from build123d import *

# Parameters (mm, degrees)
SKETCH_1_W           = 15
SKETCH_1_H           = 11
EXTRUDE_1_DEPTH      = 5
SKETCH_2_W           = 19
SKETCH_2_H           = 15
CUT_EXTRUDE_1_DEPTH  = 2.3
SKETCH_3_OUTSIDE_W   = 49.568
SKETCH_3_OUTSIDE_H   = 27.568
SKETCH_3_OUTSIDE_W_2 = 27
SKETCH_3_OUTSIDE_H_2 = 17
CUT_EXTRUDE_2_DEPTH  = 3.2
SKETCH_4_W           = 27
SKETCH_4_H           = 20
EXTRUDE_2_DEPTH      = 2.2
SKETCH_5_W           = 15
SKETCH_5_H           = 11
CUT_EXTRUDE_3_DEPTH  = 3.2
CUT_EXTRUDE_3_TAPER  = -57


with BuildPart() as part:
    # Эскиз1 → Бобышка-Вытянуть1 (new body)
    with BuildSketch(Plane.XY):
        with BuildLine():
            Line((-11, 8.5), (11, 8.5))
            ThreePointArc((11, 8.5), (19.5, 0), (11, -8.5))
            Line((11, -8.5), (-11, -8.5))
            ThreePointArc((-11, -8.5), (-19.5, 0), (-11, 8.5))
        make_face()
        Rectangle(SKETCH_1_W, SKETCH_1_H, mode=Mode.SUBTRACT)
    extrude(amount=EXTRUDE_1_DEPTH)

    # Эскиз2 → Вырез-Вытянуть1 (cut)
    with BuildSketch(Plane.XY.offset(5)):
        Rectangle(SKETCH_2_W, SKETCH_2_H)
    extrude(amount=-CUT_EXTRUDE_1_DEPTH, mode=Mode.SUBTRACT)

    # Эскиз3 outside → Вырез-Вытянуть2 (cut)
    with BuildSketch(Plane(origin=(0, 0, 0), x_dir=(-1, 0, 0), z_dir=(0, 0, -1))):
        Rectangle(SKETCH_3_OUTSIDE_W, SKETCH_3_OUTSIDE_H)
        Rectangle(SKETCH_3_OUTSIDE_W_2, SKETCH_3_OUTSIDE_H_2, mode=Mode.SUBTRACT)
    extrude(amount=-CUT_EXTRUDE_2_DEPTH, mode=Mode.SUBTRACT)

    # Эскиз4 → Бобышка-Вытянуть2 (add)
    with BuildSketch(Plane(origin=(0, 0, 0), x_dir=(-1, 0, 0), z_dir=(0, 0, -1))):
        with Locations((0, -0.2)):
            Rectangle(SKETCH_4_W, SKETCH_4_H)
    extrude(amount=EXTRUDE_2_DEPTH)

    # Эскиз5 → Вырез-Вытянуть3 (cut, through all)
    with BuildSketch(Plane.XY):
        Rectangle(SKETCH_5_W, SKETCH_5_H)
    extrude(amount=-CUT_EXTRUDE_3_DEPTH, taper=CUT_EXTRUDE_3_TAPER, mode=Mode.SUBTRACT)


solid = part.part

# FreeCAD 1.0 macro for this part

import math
import FreeCAD as App
import Part
import Sketcher
Q = App.Units.Quantity

doc = App.newDocument("Part")
body = doc.addObject("PartDesign::Body", "Body")

# Sketch on XY plane
sketch1 = body.newObject("Sketcher::SketchObject", "Sketch")
sketch1.AttachmentSupport = (doc.getObject("XY_Plane"), [""])
sketch1.MapMode = "FlatFace"
sketch1.addGeometry([
    Part.LineSegment(App.Vector(11, 8, 0), App.Vector(-11, 8, 0)),  # 0
    Part.ArcOfCircle(Part.Circle(App.Vector(-11, 0, 0), App.Vector(0, 0, 1), 8), math.radians(90), math.radians(270)),  # 1
    Part.LineSegment(App.Vector(-11, -8, 0), App.Vector(11, -8, 0)),  # 2
    Part.ArcOfCircle(Part.Circle(App.Vector(11, 0, 0), App.Vector(0, 0, 1), 8), math.radians(-90), math.radians(90)),  # 3
    Part.LineSegment(App.Vector(-8, -6, 0), App.Vector(-8, 6, 0)),  # 4
    Part.LineSegment(App.Vector(-8, 6, 0), App.Vector(8, 6, 0)),  # 5
    Part.LineSegment(App.Vector(8, 6, 0), App.Vector(8, -6, 0)),  # 6
    Part.LineSegment(App.Vector(8, -6, 0), App.Vector(-8, -6, 0)),  # 7
], False)
sketch1.addConstraint([
    Sketcher.Constraint("Tangent", 0, 2, 1, 1),
    Sketcher.Constraint("Tangent", 1, 2, 2, 1),
    Sketcher.Constraint("Tangent", 2, 2, 3, 1),
    Sketcher.Constraint("Tangent", 3, 2, 0, 1),
    Sketcher.Constraint("Coincident", 4, 2, 5, 1),
    Sketcher.Constraint("Coincident", 5, 2, 6, 1),
    Sketcher.Constraint("Coincident", 6, 2, 7, 1),
    Sketcher.Constraint("Coincident", 7, 2, 4, 1),
    Sketcher.Constraint("Horizontal", 0),
    Sketcher.Constraint("Horizontal", 2),
    Sketcher.Constraint("Vertical", 4),
    Sketcher.Constraint("Horizontal", 5),
    Sketcher.Constraint("Vertical", 6),
    Sketcher.Constraint("Horizontal", 7),
    Sketcher.Constraint("Symmetric", 1, 3, 3, 3, -1, 1),
    Sketcher.Constraint("Symmetric", 4, 2, 6, 2, -1, 1),
    Sketcher.Constraint("Radius", 1, Q("8.5 mm")),
    Sketcher.Constraint("DistanceX", 0, 2, 0, 1, Q("22 mm")),
    Sketcher.Constraint("DistanceX", 5, 1, 5, 2, Q("15 mm")),
    Sketcher.Constraint("DistanceY", 4, 1, 4, 2, Q("11 mm")),
])
pad1 = body.newObject("PartDesign::Pad", "Pad")
pad1.Profile = sketch1
pad1.Length = 5

# Sketch on XY plane
sketch2 = body.newObject("Sketcher::SketchObject", "Sketch001")
sketch2.AttachmentSupport = (doc.getObject("XY_Plane"), [""])
sketch2.MapMode = "FlatFace"
sketch2.AttachmentOffset = App.Placement(App.Vector(0, 0, 5), App.Rotation())
sketch2.addGeometry([
    Part.LineSegment(App.Vector(-10, 8, 0), App.Vector(-10, -8, 0)),
    Part.LineSegment(App.Vector(-10, -8, 0), App.Vector(10, -8, 0)),
    Part.LineSegment(App.Vector(10, -8, 0), App.Vector(10, 8, 0)),
    Part.LineSegment(App.Vector(10, 8, 0), App.Vector(-10, 8, 0)),
], False)
sketch2.addConstraint([
    Sketcher.Constraint("Coincident", 0, 2, 1, 1),
    Sketcher.Constraint("Coincident", 1, 2, 2, 1),
    Sketcher.Constraint("Coincident", 2, 2, 3, 1),
    Sketcher.Constraint("Coincident", 3, 2, 0, 1),
    Sketcher.Constraint("Vertical", 0),
    Sketcher.Constraint("Horizontal", 1),
    Sketcher.Constraint("Vertical", 2),
    Sketcher.Constraint("Horizontal", 3),
    Sketcher.Constraint("Symmetric", 0, 2, 2, 2, -1, 1),
    Sketcher.Constraint("DistanceX", 1, 1, 1, 2, Q("19 mm")),
    Sketcher.Constraint("DistanceY", 0, 2, 0, 1, Q("15 mm")),
])
pocket1 = body.newObject("PartDesign::Pocket", "Pocket")
pocket1.Profile = sketch2
pocket1.Length = 2.3

# Sketch on XY plane
sketch3 = body.newObject("Sketcher::SketchObject", "Sketch002")
sketch3.AttachmentSupport = (doc.getObject("XY_Plane"), [""])
sketch3.MapMode = "FlatFace"
sketch3.addGeometry([
    Part.LineSegment(App.Vector(25, 14, 0), App.Vector(25, -14, 0)),  # 0
    Part.LineSegment(App.Vector(25, -14, 0), App.Vector(-25, -14, 0)),  # 1
    Part.LineSegment(App.Vector(-25, -14, 0), App.Vector(-25, 14, 0)),  # 2
    Part.LineSegment(App.Vector(-25, 14, 0), App.Vector(25, 14, 0)),  # 3
    Part.LineSegment(App.Vector(-14, -8, 0), App.Vector(14, -8, 0)),  # 4
    Part.LineSegment(App.Vector(14, -8, 0), App.Vector(14, 8, 0)),  # 5
    Part.LineSegment(App.Vector(14, 8, 0), App.Vector(-14, 8, 0)),  # 6
    Part.LineSegment(App.Vector(-14, 8, 0), App.Vector(-14, -8, 0)),  # 7
], False)
sketch3.addConstraint([
    Sketcher.Constraint("Coincident", 0, 2, 1, 1),
    Sketcher.Constraint("Coincident", 1, 2, 2, 1),
    Sketcher.Constraint("Coincident", 2, 2, 3, 1),
    Sketcher.Constraint("Coincident", 3, 2, 0, 1),
    Sketcher.Constraint("Coincident", 4, 2, 5, 1),
    Sketcher.Constraint("Coincident", 5, 2, 6, 1),
    Sketcher.Constraint("Coincident", 6, 2, 7, 1),
    Sketcher.Constraint("Coincident", 7, 2, 4, 1),
    Sketcher.Constraint("Vertical", 0),
    Sketcher.Constraint("Horizontal", 1),
    Sketcher.Constraint("Vertical", 2),
    Sketcher.Constraint("Horizontal", 3),
    Sketcher.Constraint("Horizontal", 4),
    Sketcher.Constraint("Vertical", 5),
    Sketcher.Constraint("Horizontal", 6),
    Sketcher.Constraint("Vertical", 7),
    Sketcher.Constraint("Symmetric", 0, 2, 2, 2, -1, 1),
    Sketcher.Constraint("Symmetric", 4, 2, 6, 2, -1, 1),
    Sketcher.Constraint("DistanceX", 4, 1, 4, 2, Q("27 mm")),
    Sketcher.Constraint("DistanceY", 5, 1, 5, 2, Q("17 mm")),
    Sketcher.Constraint("DistanceX", 1, 2, 1, 1, Q("49.568 mm")),
    Sketcher.Constraint("DistanceY", 0, 2, 0, 1, Q("27.568 mm")),
])
pocket2 = body.newObject("PartDesign::Pocket", "Pocket001")
pocket2.Profile = sketch3
pocket2.Length = 3.2
pocket2.Reversed = True

# Sketch on XY plane
sketch4 = body.newObject("Sketcher::SketchObject", "Sketch003")
sketch4.AttachmentSupport = (doc.getObject("XY_Plane"), [""])
sketch4.MapMode = "FlatFace"
sketch4.addGeometry([
    Part.LineSegment(App.Vector(14, 10, 0), App.Vector(14, -10, 0)),
    Part.LineSegment(App.Vector(14, -10, 0), App.Vector(-14, -10, 0)),
    Part.LineSegment(App.Vector(-14, -10, 0), App.Vector(-14, 10, 0)),
    Part.LineSegment(App.Vector(-14, 10, 0), App.Vector(14, 10, 0)),
], False)
sketch4.addConstraint([
    Sketcher.Constraint("Coincident", 0, 2, 1, 1),
    Sketcher.Constraint("Coincident", 1, 2, 2, 1),
    Sketcher.Constraint("Coincident", 2, 2, 3, 1),
    Sketcher.Constraint("Coincident", 3, 2, 0, 1),
    Sketcher.Constraint("Vertical", 0),
    Sketcher.Constraint("Horizontal", 1),
    Sketcher.Constraint("Vertical", 2),
    Sketcher.Constraint("Horizontal", 3),
    Sketcher.Constraint("DistanceX", 1, 2, 1, 1, Q("27 mm")),
    Sketcher.Constraint("DistanceY", 0, 2, 0, 1, Q("20 mm")),
    Sketcher.Constraint("DistanceX", -1, 1, 0, 2, Q("13.5 mm")),
    Sketcher.Constraint("DistanceY", 0, 2, -1, 1, Q("10.2 mm")),
])
pad2 = body.newObject("PartDesign::Pad", "Pad001")
pad2.Profile = sketch4
pad2.Length = 2.2
pad2.Reversed = True

# Sketch on XY plane
sketch5 = body.newObject("Sketcher::SketchObject", "Sketch004")
sketch5.AttachmentSupport = (doc.getObject("XY_Plane"), [""])
sketch5.MapMode = "FlatFace"
sketch5.addGeometry([
    Part.LineSegment(App.Vector(-8, 6, 0), App.Vector(-8, -6, 0)),
    Part.LineSegment(App.Vector(-8, -6, 0), App.Vector(8, -6, 0)),
    Part.LineSegment(App.Vector(8, -6, 0), App.Vector(8, 6, 0)),
    Part.LineSegment(App.Vector(8, 6, 0), App.Vector(-8, 6, 0)),
], False)
sketch5.addConstraint([
    Sketcher.Constraint("Coincident", 0, 2, 1, 1),
    Sketcher.Constraint("Coincident", 1, 2, 2, 1),
    Sketcher.Constraint("Coincident", 2, 2, 3, 1),
    Sketcher.Constraint("Coincident", 3, 2, 0, 1),
    Sketcher.Constraint("Vertical", 0),
    Sketcher.Constraint("Horizontal", 1),
    Sketcher.Constraint("Vertical", 2),
    Sketcher.Constraint("Horizontal", 3),
    Sketcher.Constraint("Symmetric", 0, 2, 2, 2, -1, 1),
    Sketcher.Constraint("DistanceX", 1, 1, 1, 2, Q("15 mm")),
    Sketcher.Constraint("DistanceY", 0, 2, 0, 1, Q("11 mm")),
])
pocket3 = body.newObject("PartDesign::Pocket", "Pocket002")
pocket3.Profile = sketch5
pocket3.Type = "ThroughAll"
pocket3.TaperAngle = 57

doc.recompute()
